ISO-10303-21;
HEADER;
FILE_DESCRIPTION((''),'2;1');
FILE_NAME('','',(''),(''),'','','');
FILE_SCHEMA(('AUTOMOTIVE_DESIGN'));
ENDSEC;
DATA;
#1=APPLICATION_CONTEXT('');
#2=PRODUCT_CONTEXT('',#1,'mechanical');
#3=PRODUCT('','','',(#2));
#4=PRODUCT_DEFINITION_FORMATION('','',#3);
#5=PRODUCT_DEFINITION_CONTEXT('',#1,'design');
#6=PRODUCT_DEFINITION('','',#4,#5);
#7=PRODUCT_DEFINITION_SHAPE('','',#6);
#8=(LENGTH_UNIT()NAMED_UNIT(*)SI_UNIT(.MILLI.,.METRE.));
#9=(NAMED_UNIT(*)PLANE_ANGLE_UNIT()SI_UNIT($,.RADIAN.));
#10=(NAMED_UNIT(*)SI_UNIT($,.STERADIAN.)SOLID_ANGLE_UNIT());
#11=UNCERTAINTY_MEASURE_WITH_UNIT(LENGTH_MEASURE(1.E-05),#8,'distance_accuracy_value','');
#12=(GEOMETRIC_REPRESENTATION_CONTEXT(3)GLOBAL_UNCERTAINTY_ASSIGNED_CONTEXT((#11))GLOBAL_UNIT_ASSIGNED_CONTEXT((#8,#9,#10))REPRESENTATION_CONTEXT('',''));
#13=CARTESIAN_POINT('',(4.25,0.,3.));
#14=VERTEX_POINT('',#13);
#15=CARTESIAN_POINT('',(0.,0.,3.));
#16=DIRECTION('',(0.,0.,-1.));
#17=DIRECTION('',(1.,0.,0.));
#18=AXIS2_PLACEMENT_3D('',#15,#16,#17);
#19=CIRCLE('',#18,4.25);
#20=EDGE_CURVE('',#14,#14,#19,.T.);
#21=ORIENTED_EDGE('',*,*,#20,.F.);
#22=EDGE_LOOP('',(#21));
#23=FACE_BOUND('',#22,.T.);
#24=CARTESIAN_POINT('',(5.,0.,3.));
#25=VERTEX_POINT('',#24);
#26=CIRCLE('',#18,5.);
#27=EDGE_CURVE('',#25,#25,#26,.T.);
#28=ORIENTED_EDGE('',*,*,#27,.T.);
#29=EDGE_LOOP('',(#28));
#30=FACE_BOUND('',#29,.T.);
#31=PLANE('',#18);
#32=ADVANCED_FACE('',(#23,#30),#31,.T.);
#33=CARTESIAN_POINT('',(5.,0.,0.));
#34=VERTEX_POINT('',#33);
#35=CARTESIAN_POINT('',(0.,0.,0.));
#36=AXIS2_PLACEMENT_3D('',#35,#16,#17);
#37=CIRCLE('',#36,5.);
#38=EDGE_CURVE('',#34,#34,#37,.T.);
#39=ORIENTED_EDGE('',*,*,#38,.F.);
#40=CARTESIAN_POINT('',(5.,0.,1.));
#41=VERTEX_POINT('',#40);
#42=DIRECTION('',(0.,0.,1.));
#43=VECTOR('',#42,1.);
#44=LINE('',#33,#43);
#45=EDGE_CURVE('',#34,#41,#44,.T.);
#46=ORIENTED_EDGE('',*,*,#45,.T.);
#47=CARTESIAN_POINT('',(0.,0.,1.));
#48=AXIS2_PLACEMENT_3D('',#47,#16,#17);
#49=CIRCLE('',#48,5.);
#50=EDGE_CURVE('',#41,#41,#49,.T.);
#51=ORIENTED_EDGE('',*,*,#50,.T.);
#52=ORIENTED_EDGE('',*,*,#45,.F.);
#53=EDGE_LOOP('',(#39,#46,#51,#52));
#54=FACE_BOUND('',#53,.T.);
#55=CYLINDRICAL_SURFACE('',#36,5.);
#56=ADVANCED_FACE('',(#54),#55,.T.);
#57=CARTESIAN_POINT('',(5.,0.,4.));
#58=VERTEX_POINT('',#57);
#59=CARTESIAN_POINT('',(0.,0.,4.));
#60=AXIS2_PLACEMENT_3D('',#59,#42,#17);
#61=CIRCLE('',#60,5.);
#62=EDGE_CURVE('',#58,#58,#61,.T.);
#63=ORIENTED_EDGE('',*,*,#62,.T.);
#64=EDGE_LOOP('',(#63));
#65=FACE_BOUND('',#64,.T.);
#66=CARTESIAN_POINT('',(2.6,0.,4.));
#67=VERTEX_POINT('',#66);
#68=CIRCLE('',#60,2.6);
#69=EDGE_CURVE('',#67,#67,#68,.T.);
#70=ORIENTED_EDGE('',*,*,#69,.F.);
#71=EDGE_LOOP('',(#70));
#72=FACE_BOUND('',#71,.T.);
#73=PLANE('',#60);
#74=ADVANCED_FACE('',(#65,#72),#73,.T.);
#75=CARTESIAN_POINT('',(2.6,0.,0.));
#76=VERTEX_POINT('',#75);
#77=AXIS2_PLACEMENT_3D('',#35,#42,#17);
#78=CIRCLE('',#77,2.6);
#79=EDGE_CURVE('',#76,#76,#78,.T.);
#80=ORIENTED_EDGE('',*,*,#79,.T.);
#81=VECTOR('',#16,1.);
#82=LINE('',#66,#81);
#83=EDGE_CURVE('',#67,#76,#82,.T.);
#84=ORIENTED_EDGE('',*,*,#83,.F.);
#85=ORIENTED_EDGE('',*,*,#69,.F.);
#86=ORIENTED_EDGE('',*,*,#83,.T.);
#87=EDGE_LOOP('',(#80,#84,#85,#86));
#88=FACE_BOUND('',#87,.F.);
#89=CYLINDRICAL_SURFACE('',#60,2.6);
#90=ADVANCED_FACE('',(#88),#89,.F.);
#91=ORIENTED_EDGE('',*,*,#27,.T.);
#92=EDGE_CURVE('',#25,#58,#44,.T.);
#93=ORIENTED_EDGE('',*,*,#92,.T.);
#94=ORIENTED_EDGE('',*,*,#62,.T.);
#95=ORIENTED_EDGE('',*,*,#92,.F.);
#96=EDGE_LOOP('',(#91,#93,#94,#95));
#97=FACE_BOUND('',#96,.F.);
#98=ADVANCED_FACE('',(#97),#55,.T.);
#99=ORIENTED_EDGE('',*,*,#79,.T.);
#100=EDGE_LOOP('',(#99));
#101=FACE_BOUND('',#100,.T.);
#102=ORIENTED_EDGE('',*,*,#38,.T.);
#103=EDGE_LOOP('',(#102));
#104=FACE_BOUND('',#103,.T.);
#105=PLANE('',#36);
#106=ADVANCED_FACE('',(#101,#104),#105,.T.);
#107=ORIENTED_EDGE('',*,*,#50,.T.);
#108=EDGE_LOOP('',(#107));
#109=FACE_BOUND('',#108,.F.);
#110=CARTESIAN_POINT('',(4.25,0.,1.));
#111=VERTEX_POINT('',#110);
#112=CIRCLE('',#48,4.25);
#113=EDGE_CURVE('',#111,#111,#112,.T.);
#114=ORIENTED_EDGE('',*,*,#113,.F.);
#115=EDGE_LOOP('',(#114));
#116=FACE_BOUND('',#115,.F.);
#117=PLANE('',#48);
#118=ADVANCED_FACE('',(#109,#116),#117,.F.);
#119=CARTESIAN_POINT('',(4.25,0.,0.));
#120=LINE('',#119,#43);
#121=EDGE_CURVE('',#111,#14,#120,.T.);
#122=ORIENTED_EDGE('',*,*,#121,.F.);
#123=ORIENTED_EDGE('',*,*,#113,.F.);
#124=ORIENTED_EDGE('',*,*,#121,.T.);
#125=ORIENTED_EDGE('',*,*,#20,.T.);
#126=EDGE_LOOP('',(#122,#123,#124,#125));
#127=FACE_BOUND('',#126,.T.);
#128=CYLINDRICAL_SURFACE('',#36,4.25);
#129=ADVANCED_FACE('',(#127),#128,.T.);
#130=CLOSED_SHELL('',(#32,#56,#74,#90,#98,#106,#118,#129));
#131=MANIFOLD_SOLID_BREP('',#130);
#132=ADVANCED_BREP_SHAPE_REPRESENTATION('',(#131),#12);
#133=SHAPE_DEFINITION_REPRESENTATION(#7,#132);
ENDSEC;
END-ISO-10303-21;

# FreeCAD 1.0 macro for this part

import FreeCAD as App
import Part
import Sketcher

V = App.Vector
Q = App.Units.Quantity

doc = App.newDocument("Part")
body = doc.addObject("PartDesign::Body", "Body")

sketch1 = body.newObject("Sketcher::SketchObject", "Sketch")
sketch1.AttachmentSupport = (doc.getObject("XY_Plane"), [""])
sketch1.MapMode = "FlatFace"
sketch1.addGeometry(Part.Circle(V(0, 0, 0), V(0, 0, 1), 5), False)
sketch1.addConstraint([
    Sketcher.Constraint("Coincident", 0, 3, -1, 1),
    Sketcher.Constraint("Diameter", 0, Q("10 mm")),
])
pad1 = body.newObject("PartDesign::Pad", "Pad")
pad1.Profile = sketch1
pad1.Length = 4

sketch2 = body.newObject("Sketcher::SketchObject", "Sketch001")
sketch2.AttachmentSupport = (doc.getObject("XY_Plane"), [""])
sketch2.MapMode = "FlatFace"
sketch2.addGeometry([
    Part.Circle(V(0, 0, 0), V(0, 0, 1), 5),
    Part.Circle(V(0, 0, 0), V(0, 0, 1), 4.25),
], False)
sketch2.addConstraint([
    Sketcher.Constraint("Coincident", 0, 3, -1, 1),
    Sketcher.Constraint("Coincident", 1, 3, -1, 1),
    Sketcher.Constraint("Diameter", 0, Q("10 mm")),
    Sketcher.Constraint("Diameter", 1, Q("8.5 mm")),
])
pocket1 = body.newObject("PartDesign::Pocket", "Pocket")
pocket1.Profile = sketch2
pocket1.Length = 3
pocket1.Reversed = True

sketch3 = body.newObject("Sketcher::SketchObject", "Sketch002")
sketch3.AttachmentSupport = (doc.getObject("XY_Plane"), [""])
sketch3.MapMode = "FlatFace"
sketch3.AttachmentOffset = App.Placement(V(0, 0, 4), App.Rotation())
sketch3.addGeometry(Part.Circle(V(0, 0, 0), V(0, 0, 1), 2.6), False)
sketch3.addConstraint([
    Sketcher.Constraint("Coincident", 0, 3, -1, 1),
    Sketcher.Constraint("Diameter", 0, Q("5.2 mm")),
])
pocket2 = body.newObject("PartDesign::Pocket", "Pocket001")
pocket2.Profile = sketch3
pocket2.Type = "ThroughAll"

sketch4 = body.newObject("Sketcher::SketchObject", "Sketch003")
sketch4.AttachmentSupport = (doc.getObject("XY_Plane"), [""])
sketch4.MapMode = "FlatFace"
sketch4.addGeometry([
    Part.Circle(V(0, 0, 0), V(0, 0, 1), 5),
    Part.Circle(V(0, 0, 0), V(0, 0, 1), 4.25),
], False)
sketch4.addConstraint([
    Sketcher.Constraint("Coincident", 0, 3, -1, 1),
    Sketcher.Constraint("Coincident", 1, 3, -1, 1),
    Sketcher.Constraint("Diameter", 0, Q("10 mm")),
    Sketcher.Constraint("Diameter", 1, Q("8.5 mm")),
])
pad2 = body.newObject("PartDesign::Pad", "Pad001")
pad2.Profile = sketch4
pad2.Length = 1

doc.recompute()
